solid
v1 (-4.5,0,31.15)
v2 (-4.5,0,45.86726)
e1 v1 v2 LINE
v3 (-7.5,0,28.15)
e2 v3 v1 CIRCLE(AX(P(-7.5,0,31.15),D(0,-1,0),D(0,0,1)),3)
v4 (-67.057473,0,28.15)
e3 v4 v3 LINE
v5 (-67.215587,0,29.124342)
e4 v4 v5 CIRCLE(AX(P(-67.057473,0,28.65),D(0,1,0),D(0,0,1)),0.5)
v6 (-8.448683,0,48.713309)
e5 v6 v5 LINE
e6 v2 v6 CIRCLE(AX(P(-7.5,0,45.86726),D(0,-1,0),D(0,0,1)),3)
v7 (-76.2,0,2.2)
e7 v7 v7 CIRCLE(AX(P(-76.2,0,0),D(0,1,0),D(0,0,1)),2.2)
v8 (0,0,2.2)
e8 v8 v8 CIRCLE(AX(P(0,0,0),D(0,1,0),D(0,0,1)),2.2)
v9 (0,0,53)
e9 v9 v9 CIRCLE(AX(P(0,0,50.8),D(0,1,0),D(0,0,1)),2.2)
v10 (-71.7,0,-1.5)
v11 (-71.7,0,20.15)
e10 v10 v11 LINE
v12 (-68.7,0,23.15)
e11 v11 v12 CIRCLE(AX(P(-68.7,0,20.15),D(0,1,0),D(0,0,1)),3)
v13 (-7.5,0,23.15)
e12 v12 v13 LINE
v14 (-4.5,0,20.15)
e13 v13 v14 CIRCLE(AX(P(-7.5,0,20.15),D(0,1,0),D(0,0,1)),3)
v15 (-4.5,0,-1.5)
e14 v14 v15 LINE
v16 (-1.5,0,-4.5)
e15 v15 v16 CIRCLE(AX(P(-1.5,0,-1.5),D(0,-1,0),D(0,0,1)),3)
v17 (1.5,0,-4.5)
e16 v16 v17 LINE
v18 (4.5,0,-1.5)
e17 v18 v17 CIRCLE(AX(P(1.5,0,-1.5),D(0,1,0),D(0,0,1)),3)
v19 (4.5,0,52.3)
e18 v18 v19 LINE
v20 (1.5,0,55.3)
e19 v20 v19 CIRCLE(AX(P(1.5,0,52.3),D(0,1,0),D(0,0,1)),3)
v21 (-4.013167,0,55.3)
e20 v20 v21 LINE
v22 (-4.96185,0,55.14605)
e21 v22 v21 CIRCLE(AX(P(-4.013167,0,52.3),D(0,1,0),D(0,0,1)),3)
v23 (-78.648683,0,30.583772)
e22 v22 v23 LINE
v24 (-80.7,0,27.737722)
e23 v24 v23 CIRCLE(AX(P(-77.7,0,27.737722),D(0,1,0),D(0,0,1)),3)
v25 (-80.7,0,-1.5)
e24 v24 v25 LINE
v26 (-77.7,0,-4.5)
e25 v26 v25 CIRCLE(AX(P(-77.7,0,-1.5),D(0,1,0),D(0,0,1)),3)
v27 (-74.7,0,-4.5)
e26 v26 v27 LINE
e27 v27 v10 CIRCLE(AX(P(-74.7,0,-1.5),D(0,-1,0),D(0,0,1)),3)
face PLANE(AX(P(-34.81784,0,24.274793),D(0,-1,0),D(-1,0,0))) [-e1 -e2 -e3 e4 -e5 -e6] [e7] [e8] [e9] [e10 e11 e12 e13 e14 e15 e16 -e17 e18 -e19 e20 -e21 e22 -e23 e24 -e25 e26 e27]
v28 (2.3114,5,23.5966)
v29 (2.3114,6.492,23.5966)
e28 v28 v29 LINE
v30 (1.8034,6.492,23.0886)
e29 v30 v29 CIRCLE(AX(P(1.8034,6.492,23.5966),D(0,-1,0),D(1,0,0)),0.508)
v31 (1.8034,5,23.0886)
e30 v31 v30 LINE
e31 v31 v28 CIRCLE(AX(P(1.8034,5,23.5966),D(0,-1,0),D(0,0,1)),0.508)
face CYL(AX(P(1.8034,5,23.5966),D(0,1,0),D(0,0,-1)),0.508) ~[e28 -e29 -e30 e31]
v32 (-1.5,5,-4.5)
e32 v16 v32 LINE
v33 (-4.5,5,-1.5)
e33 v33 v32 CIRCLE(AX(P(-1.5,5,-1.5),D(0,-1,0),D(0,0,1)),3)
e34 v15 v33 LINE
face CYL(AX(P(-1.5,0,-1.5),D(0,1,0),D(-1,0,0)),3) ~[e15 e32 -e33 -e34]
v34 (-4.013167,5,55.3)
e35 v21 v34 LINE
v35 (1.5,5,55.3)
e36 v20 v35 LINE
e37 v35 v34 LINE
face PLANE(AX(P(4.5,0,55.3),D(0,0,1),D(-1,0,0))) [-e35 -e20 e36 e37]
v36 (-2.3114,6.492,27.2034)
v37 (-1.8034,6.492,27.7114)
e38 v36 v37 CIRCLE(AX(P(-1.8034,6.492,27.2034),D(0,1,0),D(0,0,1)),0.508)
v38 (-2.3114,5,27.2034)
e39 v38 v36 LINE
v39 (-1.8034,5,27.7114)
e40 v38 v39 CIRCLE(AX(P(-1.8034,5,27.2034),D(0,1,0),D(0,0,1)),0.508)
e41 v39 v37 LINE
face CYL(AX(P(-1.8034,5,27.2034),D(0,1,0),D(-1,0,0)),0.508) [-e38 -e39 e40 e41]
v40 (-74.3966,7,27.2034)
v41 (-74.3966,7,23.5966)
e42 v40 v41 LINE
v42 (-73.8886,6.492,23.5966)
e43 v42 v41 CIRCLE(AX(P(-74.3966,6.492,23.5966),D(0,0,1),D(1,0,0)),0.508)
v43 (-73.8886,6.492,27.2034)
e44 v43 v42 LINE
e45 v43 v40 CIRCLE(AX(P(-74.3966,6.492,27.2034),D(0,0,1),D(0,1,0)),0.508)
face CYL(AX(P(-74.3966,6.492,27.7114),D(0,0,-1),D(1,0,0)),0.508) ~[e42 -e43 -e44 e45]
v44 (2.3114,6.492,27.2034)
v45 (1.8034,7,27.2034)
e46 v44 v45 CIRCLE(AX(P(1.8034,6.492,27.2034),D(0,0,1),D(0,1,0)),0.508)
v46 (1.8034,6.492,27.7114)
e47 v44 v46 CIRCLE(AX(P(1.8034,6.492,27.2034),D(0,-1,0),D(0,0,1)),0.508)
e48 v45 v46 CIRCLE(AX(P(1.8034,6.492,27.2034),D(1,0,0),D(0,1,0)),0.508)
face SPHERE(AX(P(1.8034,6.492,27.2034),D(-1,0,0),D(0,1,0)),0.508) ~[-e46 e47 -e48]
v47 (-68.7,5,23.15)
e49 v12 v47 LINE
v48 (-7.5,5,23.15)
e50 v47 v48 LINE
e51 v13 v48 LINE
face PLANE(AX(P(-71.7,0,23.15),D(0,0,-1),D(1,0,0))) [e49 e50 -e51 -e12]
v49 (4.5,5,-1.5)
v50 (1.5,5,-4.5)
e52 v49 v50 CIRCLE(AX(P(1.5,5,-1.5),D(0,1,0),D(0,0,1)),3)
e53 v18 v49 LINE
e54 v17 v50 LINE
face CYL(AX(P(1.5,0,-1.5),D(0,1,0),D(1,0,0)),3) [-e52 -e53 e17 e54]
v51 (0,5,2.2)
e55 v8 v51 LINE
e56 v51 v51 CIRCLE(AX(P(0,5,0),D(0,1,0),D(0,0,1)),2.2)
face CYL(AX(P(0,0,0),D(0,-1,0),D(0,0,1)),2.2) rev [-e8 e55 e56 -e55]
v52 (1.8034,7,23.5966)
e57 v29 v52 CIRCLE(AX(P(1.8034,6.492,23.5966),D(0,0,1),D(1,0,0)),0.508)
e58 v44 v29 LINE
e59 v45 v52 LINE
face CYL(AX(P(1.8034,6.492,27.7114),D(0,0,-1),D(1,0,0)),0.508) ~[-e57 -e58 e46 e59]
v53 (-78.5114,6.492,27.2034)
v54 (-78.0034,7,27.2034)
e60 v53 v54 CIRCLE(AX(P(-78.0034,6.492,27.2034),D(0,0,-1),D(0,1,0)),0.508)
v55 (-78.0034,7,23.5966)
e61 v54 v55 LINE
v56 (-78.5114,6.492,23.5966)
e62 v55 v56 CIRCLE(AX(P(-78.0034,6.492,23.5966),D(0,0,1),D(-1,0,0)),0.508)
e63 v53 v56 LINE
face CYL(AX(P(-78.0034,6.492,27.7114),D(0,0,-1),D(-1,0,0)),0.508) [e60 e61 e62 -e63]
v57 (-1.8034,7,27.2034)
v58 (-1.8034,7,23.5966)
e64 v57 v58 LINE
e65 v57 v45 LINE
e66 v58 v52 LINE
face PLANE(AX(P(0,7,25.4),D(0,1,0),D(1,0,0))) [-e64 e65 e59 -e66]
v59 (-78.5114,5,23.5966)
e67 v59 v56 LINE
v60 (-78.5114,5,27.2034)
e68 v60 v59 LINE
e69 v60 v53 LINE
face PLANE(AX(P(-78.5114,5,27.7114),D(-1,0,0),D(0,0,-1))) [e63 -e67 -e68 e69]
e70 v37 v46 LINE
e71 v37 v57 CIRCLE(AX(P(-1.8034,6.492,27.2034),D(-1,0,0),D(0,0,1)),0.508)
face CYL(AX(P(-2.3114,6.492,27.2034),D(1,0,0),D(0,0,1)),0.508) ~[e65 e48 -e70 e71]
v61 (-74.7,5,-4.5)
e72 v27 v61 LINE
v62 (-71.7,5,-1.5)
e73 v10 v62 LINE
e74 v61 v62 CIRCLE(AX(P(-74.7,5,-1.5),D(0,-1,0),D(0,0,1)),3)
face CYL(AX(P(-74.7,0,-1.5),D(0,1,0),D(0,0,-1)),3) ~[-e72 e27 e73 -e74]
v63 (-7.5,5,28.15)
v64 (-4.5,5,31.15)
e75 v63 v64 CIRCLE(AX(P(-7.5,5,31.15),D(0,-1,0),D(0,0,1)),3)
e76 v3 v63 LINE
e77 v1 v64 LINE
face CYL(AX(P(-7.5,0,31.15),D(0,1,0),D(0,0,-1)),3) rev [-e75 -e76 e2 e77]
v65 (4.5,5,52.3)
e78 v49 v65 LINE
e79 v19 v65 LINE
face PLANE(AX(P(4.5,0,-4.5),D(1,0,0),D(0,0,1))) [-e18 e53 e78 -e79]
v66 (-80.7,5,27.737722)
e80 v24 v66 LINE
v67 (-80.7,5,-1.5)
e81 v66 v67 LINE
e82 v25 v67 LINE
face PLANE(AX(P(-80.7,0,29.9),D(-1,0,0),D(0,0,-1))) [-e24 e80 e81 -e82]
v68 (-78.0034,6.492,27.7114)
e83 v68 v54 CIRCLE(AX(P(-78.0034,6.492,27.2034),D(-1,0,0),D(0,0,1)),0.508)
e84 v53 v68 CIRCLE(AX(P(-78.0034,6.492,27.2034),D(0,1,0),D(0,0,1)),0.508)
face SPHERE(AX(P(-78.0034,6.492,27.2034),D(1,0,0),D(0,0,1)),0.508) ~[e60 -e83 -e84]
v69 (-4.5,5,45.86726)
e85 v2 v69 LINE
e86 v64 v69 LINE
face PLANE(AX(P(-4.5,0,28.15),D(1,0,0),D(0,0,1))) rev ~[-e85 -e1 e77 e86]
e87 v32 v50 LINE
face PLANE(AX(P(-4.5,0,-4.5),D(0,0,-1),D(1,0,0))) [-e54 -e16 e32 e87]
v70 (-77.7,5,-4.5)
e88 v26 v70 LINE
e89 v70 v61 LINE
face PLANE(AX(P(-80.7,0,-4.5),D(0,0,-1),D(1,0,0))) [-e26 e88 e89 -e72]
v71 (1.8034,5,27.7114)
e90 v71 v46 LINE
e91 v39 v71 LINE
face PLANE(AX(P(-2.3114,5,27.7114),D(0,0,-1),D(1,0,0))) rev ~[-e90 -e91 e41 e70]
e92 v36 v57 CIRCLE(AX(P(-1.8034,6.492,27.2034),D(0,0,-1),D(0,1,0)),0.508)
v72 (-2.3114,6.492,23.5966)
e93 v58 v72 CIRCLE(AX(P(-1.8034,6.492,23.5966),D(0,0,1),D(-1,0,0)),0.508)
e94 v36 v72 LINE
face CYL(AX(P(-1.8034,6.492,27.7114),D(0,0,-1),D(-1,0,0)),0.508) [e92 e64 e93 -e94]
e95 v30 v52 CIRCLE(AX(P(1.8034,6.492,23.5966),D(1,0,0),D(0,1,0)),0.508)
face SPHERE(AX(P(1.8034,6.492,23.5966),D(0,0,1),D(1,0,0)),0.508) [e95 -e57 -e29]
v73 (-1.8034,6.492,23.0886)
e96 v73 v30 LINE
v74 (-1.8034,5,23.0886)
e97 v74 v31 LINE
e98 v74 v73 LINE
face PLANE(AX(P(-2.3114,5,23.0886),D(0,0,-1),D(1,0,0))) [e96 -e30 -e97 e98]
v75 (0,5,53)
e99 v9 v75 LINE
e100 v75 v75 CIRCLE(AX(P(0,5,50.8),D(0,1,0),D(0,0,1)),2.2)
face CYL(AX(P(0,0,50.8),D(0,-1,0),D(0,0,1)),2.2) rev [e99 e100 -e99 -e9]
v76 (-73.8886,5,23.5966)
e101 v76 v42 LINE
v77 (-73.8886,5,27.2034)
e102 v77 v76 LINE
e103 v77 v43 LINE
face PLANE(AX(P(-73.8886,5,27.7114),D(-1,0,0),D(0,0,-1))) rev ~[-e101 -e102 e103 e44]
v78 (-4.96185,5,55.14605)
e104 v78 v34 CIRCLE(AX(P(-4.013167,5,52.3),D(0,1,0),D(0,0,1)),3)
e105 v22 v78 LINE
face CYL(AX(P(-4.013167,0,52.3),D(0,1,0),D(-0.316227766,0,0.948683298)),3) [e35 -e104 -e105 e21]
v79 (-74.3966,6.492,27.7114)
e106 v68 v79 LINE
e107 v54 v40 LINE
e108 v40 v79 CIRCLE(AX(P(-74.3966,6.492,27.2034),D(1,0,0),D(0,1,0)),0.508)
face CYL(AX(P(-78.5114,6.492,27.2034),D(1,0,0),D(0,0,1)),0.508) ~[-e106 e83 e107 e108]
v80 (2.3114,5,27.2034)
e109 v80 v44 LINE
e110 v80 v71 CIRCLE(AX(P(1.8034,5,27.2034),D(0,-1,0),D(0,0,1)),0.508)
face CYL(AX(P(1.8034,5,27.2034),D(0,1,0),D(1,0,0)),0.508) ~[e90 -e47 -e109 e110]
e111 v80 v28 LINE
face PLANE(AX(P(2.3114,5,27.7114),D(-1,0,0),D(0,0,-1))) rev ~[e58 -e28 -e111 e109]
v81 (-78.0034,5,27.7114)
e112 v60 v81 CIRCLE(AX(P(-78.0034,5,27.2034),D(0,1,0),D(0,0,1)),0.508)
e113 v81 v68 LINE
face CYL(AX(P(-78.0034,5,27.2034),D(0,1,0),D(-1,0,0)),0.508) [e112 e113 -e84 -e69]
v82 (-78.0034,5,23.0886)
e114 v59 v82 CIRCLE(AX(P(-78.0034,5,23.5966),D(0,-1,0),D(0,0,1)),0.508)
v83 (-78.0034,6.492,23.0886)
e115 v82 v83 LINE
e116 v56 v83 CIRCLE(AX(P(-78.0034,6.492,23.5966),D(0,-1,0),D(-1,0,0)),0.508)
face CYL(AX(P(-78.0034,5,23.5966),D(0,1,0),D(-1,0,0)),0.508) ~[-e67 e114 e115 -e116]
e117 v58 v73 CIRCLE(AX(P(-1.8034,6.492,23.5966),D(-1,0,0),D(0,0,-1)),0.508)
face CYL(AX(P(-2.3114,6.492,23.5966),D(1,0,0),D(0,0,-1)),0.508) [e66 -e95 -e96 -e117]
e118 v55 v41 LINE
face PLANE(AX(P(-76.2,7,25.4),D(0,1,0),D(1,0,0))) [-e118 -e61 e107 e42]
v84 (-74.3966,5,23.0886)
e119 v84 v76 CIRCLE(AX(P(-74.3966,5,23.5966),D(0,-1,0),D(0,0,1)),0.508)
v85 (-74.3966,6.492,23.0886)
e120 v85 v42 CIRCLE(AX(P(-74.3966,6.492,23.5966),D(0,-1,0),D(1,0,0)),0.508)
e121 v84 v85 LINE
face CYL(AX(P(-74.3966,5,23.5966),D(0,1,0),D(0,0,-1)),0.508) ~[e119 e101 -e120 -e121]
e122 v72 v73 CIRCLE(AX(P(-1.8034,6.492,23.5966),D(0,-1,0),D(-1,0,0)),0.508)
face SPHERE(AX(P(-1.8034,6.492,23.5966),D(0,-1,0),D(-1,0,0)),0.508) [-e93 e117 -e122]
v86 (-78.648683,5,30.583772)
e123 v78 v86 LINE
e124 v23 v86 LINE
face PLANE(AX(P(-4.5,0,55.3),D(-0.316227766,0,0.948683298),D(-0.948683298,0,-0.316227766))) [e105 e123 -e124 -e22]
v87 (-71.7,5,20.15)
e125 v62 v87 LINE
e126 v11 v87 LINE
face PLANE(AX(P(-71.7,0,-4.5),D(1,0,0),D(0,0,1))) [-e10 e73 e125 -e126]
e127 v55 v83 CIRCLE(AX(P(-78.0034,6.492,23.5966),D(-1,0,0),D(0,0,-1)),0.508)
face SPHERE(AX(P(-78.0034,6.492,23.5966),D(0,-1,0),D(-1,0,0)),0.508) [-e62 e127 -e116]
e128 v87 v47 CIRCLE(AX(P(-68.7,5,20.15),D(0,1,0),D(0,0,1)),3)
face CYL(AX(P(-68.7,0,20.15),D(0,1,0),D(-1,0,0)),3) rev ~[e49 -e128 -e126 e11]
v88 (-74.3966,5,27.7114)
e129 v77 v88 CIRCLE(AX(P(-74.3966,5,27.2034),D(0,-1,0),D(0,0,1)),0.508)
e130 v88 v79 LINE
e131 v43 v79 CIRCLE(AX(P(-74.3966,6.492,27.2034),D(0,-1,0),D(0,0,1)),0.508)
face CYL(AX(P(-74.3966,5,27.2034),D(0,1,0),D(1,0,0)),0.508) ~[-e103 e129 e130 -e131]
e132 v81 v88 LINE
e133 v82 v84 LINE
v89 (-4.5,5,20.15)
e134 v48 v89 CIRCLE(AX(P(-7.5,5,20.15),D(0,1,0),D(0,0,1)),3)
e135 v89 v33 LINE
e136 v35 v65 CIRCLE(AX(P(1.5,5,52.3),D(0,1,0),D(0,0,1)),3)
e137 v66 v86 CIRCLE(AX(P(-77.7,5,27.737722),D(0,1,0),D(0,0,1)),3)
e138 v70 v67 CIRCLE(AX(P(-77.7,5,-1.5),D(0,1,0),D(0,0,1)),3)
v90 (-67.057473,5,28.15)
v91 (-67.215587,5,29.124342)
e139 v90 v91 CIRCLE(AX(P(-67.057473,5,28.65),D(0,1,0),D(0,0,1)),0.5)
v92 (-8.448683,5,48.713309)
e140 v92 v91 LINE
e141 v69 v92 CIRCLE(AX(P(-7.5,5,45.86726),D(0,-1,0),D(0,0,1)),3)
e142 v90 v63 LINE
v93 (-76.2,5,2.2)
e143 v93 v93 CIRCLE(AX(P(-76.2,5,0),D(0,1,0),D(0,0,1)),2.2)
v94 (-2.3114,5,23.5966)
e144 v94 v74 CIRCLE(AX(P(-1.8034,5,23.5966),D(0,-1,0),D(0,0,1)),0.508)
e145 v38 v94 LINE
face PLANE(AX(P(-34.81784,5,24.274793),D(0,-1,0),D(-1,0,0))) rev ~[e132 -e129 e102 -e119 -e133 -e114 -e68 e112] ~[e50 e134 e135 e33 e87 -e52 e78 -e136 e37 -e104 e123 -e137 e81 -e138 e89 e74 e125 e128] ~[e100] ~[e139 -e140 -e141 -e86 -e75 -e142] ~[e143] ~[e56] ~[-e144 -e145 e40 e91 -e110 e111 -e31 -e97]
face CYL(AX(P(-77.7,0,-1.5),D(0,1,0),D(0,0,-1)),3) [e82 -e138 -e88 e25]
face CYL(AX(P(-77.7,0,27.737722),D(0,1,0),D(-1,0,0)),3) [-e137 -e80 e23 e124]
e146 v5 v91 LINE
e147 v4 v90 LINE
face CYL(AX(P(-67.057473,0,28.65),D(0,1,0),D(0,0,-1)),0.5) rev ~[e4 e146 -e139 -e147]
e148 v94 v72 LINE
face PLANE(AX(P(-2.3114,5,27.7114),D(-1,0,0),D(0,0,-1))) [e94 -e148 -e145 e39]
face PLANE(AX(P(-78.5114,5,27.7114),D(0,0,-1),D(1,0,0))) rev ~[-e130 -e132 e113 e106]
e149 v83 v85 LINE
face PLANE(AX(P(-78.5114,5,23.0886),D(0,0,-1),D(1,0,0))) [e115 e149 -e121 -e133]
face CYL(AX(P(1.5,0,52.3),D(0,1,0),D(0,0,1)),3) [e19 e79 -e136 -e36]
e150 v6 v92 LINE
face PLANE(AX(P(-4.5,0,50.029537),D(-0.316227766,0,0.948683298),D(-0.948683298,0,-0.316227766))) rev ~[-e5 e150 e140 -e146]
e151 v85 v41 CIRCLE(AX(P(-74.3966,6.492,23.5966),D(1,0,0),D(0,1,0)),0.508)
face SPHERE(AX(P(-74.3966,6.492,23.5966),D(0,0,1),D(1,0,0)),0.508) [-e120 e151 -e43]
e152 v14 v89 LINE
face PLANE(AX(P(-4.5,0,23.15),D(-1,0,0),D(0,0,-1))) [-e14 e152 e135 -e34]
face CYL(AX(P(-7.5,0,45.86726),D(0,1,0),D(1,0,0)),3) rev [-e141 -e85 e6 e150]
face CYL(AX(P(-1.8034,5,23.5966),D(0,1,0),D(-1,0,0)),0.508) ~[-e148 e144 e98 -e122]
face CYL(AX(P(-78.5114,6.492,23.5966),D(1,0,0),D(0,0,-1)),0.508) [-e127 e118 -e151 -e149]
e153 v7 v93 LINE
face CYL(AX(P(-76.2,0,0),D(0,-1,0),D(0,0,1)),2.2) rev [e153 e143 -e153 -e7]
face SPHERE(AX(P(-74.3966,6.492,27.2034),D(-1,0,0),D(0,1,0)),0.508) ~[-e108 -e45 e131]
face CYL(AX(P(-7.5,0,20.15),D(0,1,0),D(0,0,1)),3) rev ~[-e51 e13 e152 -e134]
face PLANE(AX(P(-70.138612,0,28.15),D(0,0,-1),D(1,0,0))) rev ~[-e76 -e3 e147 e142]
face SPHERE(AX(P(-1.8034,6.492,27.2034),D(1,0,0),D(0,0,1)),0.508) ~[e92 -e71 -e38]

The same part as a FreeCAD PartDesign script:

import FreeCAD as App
import Part
import Sketcher

V = App.Vector
Q = App.Units.Quantity


def edges_at(feature, points):
    """Names of the edges that pass closest to the given points."""
    edges = feature.Shape.Edges
    near = lambda p: min(range(len(edges)), key=lambda i: edges[i].distToShape(Part.Vertex(*p))[0])
    return sorted({f"Edge{near(p) + 1}" for p in points})

doc = App.newDocument("Part")
body = doc.addObject("PartDesign::Body", "Body")

sketch1 = body.newObject("Sketcher::SketchObject", "Sketch")
sketch1.AttachmentSupport = (doc.getObject("XZ_Plane"), [""])
sketch1.MapMode = "FlatFace"
sketch1.addGeometry([
    Part.LineSegment(V(-71.7, -4.5, 0), V(-80.7, -4.5, 0)),
    Part.LineSegment(V(-80.7, -4.5, 0), V(-80.7, 29.9, 0)),
    Part.LineSegment(V(-80.7, 29.9, 0), V(-4.5, 55.3, 0)),
    Part.LineSegment(V(-4.5, 55.3, 0), V(4.5, 55.3, 0)),
    Part.LineSegment(V(4.5, 55.3, 0), V(4.5, -4.5, 0)),
    Part.LineSegment(V(4.5, -4.5, 0), V(-4.5, -4.5, 0)),
    Part.LineSegment(V(-4.5, -4.5, 0), V(-4.5, 23.1, 0)),
    Part.LineSegment(V(-4.5, 23.1, 0), V(-71.7, 23.1, 0)),
    Part.LineSegment(V(-71.7, 23.1, 0), V(-71.7, -4.5, 0)),
    Part.Circle(V(0, 50.8, 0), V(0, 0, 1), 2.2),
    Part.LineSegment(V(-70.1, 28.1, 0), V(-4.5, 28.1, 0)),
    Part.LineSegment(V(-4.5, 28.1, 0), V(-4.5, 50, 0)),
    Part.LineSegment(V(-4.5, 50, 0), V(-70.1, 28.1, 0)),
    Part.Circle(V(0, 0, 0), V(0, 0, 1), 2.2),
    Part.Circle(V(-76.2, 0, 0), V(0, 0, 1), 2.2),
], False)
sketch1.addConstraint([
    Sketcher.Constraint("Coincident", 0, 2, 1, 1),
    Sketcher.Constraint("Coincident", 1, 2, 2, 1),
    Sketcher.Constraint("Coincident", 2, 2, 3, 1),
    Sketcher.Constraint("Coincident", 3, 2, 4, 1),
    Sketcher.Constraint("Coincident", 4, 2, 5, 1),
    Sketcher.Constraint("Coincident", 5, 2, 6, 1),
    Sketcher.Constraint("Coincident", 6, 2, 7, 1),
    Sketcher.Constraint("Coincident", 7, 2, 8, 1),
    Sketcher.Constraint("Coincident", 8, 2, 0, 1),
    Sketcher.Constraint("Coincident", 10, 2, 11, 1),
    Sketcher.Constraint("Coincident", 11, 2, 12, 1),
    Sketcher.Constraint("Coincident", 12, 2, 10, 1),
    Sketcher.Constraint("Horizontal", 0),
    Sketcher.Constraint("Vertical", 1),
    Sketcher.Constraint("Horizontal", 3),
    Sketcher.Constraint("Vertical", 4),
    Sketcher.Constraint("Horizontal", 5),
    Sketcher.Constraint("Vertical", 6),
    Sketcher.Constraint("Horizontal", 7),
    Sketcher.Constraint("Vertical", 8),
    Sketcher.Constraint("Horizontal", 10),
    Sketcher.Constraint("Vertical", 11),
    Sketcher.Constraint("Coincident", 13, 3, -1, 1),
    Sketcher.Constraint("Equal", 9, 13),
    Sketcher.Constraint("Equal", 13, 14),
    Sketcher.Constraint("PointOnObject", 9, 3, -2),
    Sketcher.Constraint("PointOnObject", 14, 3, -1),
    Sketcher.Constraint("Parallel", 2, 12),
    Sketcher.Constraint("Horizontal", 0, 2, 4, 2),
    Sketcher.Constraint("Vertical", 2, 2, 5, 2),
    Sketcher.Constraint("Vertical", 6, 2, 10, 2),
    Sketcher.Constraint("Equal", 0, 3),
    Sketcher.Constraint("Diameter", 9, Q("4.4 mm")),
    Sketcher.Constraint("DistanceX", 0, 2, 0, 1, Q("9 mm")),
    Sketcher.Constraint("DistanceX", 7, 2, 7, 1, Q("67.2 mm")),
    Sketcher.Constraint("DistanceY", 1, 1, 1, 2, Q("34.4 mm")),
    Sketcher.Constraint("DistanceY", 4, 2, 4, 1, Q("59.8 mm")),
    Sketcher.Constraint("DistanceY", 6, 2, 10, 2, Q("5 mm")),
    Sketcher.Constraint("DistanceY", 6, 1, 6, 2, Q("27.65 mm")),
    Sketcher.Constraint("DistanceY", -1, 1, 9, 3, Q("50.8 mm")),
    Sketcher.Constraint("DistanceX", 14, 3, -1, 1, Q("76.2 mm")),
    Sketcher.Constraint("DistanceX", 0, 2, -1, 1, Q("80.7 mm")),
    Sketcher.Constraint("DistanceY", 0, 2, -1, 1, Q("4.5 mm")),
    Sketcher.Constraint("DistanceX", 10, 1, 10, 2, Q("65.638612 mm")),
])
pad1 = body.newObject("PartDesign::Pad", "Pad")
pad1.Profile = sketch1
pad1.Length = 5
pad1.Reversed = True

sketch2 = body.newObject("Sketcher::SketchObject", "Sketch001")
sketch2.AttachmentSupport = (doc.getObject("XZ_Plane"), [""])
sketch2.MapMode = "FlatFace"
sketch2.AttachmentOffset = App.Placement(V(0, 0, -5), App.Rotation())
sketch2.addGeometry([
    Part.LineSegment(V(-78.5, 23.1, 0), V(-78.5, 27.7, 0)),
    Part.LineSegment(V(-78.5, 27.7, 0), V(-73.9, 27.7, 0)),
    Part.LineSegment(V(-73.9, 27.7, 0), V(-73.9, 23.1, 0)),
    Part.LineSegment(V(-73.9, 23.1, 0), V(-78.5, 23.1, 0)),
    Part.LineSegment(V(-2.3, 23.1, 0), V(-2.3, 27.7, 0)),
    Part.LineSegment(V(-2.3, 27.7, 0), V(2.3, 27.7, 0)),
    Part.LineSegment(V(2.3, 27.7, 0), V(2.3, 23.1, 0)),
    Part.LineSegment(V(2.3, 23.1, 0), V(-2.3, 23.1, 0)),
], False)
sketch2.addConstraint([
    Sketcher.Constraint("Coincident", 0, 2, 1, 1),
    Sketcher.Constraint("Coincident", 1, 2, 2, 1),
    Sketcher.Constraint("Coincident", 2, 2, 3, 1),
    Sketcher.Constraint("Coincident", 3, 2, 0, 1),
    Sketcher.Constraint("Coincident", 4, 2, 5, 1),
    Sketcher.Constraint("Coincident", 5, 2, 6, 1),
    Sketcher.Constraint("Coincident", 6, 2, 7, 1),
    Sketcher.Constraint("Coincident", 7, 2, 4, 1),
    Sketcher.Constraint("Vertical", 0),
    Sketcher.Constraint("Horizontal", 1),
    Sketcher.Constraint("Vertical", 2),
    Sketcher.Constraint("Horizontal", 3),
    Sketcher.Constraint("Vertical", 4),
    Sketcher.Constraint("Horizontal", 5),
    Sketcher.Constraint("Vertical", 6),
    Sketcher.Constraint("Horizontal", 7),
    Sketcher.Constraint("Horizontal", 1, 2, 4, 2),
    Sketcher.Constraint("Horizontal", 3, 2, 6, 2),
    Sketcher.Constraint("Equal", 3, 5),
    Sketcher.Constraint("Equal", 7, 0),
    Sketcher.Constraint("DistanceX", 0, 2, 4, 2, Q("76.2 mm")),
    Sketcher.Constraint("DistanceX", 1, 1, 1, 2, Q("4.6228 mm")),
    Sketcher.Constraint("DistanceX", 0, 2, -1, 1, Q("78.5114 mm")),
    Sketcher.Constraint("DistanceY", -1, 1, 0, 2, Q("27.7114 mm")),
])
pad2 = body.newObject("PartDesign::Pad", "Pad001")
pad2.Profile = sketch2
pad2.Length = 2
pad2.Reversed = True
doc.recompute()

fillet = body.newObject("PartDesign::Fillet", "Fillet")
fillet.Base = (pad2, edges_at(pad2, [
    (-4.5, 2.5, 28.15),
    (-4.5, 2.5, 50.03),
    (-80.7, 2.5, -4.5),
    (-71.7, 2.5, -4.5),
    (-71.7, 2.5, 23.15),
    (-4.5, 2.5, 23.15),
    (-4.5, 2.5, -4.5),
    (4.5, 2.5, -4.5),
    (4.5, 2.5, 55.3),
    (-4.5, 2.5, 55.3),
    (-80.7, 2.5, 29.9),
]))
fillet.Radius = 3
doc.recompute()

fillet2 = body.newObject("PartDesign::Fillet", "Fillet001")
fillet2.Base = (fillet, edges_at(fillet, [
    (-78.511, 6, 23.089),
    (-76.2, 7, 27.711),
    (-78.511, 6, 27.711),
    (-73.889, 7, 25.4),
    (-73.889, 6, 27.711),
    (-73.889, 6, 23.089),
    (-78.511, 7, 25.4),
    (-76.2, 7, 23.089),
    (-2.311, 6, 23.089),
    (0, 7, 27.711),
    (-2.311, 6, 27.711),
    (2.311, 7, 25.4),
    (2.311, 6, 27.711),
    (2.311, 6, 23.089),
    (-2.311, 7, 25.4),
    (0, 7, 23.089),
]))
fillet2.Radius = 0.508
doc.recompute()

fillet3 = body.newObject("PartDesign::Fillet", "Fillet002")
fillet3.Base = (fillet2, edges_at(fillet2, [(-70.139, 2.5, 28.15)]))
fillet3.Radius = 0.5

doc.recompute()
